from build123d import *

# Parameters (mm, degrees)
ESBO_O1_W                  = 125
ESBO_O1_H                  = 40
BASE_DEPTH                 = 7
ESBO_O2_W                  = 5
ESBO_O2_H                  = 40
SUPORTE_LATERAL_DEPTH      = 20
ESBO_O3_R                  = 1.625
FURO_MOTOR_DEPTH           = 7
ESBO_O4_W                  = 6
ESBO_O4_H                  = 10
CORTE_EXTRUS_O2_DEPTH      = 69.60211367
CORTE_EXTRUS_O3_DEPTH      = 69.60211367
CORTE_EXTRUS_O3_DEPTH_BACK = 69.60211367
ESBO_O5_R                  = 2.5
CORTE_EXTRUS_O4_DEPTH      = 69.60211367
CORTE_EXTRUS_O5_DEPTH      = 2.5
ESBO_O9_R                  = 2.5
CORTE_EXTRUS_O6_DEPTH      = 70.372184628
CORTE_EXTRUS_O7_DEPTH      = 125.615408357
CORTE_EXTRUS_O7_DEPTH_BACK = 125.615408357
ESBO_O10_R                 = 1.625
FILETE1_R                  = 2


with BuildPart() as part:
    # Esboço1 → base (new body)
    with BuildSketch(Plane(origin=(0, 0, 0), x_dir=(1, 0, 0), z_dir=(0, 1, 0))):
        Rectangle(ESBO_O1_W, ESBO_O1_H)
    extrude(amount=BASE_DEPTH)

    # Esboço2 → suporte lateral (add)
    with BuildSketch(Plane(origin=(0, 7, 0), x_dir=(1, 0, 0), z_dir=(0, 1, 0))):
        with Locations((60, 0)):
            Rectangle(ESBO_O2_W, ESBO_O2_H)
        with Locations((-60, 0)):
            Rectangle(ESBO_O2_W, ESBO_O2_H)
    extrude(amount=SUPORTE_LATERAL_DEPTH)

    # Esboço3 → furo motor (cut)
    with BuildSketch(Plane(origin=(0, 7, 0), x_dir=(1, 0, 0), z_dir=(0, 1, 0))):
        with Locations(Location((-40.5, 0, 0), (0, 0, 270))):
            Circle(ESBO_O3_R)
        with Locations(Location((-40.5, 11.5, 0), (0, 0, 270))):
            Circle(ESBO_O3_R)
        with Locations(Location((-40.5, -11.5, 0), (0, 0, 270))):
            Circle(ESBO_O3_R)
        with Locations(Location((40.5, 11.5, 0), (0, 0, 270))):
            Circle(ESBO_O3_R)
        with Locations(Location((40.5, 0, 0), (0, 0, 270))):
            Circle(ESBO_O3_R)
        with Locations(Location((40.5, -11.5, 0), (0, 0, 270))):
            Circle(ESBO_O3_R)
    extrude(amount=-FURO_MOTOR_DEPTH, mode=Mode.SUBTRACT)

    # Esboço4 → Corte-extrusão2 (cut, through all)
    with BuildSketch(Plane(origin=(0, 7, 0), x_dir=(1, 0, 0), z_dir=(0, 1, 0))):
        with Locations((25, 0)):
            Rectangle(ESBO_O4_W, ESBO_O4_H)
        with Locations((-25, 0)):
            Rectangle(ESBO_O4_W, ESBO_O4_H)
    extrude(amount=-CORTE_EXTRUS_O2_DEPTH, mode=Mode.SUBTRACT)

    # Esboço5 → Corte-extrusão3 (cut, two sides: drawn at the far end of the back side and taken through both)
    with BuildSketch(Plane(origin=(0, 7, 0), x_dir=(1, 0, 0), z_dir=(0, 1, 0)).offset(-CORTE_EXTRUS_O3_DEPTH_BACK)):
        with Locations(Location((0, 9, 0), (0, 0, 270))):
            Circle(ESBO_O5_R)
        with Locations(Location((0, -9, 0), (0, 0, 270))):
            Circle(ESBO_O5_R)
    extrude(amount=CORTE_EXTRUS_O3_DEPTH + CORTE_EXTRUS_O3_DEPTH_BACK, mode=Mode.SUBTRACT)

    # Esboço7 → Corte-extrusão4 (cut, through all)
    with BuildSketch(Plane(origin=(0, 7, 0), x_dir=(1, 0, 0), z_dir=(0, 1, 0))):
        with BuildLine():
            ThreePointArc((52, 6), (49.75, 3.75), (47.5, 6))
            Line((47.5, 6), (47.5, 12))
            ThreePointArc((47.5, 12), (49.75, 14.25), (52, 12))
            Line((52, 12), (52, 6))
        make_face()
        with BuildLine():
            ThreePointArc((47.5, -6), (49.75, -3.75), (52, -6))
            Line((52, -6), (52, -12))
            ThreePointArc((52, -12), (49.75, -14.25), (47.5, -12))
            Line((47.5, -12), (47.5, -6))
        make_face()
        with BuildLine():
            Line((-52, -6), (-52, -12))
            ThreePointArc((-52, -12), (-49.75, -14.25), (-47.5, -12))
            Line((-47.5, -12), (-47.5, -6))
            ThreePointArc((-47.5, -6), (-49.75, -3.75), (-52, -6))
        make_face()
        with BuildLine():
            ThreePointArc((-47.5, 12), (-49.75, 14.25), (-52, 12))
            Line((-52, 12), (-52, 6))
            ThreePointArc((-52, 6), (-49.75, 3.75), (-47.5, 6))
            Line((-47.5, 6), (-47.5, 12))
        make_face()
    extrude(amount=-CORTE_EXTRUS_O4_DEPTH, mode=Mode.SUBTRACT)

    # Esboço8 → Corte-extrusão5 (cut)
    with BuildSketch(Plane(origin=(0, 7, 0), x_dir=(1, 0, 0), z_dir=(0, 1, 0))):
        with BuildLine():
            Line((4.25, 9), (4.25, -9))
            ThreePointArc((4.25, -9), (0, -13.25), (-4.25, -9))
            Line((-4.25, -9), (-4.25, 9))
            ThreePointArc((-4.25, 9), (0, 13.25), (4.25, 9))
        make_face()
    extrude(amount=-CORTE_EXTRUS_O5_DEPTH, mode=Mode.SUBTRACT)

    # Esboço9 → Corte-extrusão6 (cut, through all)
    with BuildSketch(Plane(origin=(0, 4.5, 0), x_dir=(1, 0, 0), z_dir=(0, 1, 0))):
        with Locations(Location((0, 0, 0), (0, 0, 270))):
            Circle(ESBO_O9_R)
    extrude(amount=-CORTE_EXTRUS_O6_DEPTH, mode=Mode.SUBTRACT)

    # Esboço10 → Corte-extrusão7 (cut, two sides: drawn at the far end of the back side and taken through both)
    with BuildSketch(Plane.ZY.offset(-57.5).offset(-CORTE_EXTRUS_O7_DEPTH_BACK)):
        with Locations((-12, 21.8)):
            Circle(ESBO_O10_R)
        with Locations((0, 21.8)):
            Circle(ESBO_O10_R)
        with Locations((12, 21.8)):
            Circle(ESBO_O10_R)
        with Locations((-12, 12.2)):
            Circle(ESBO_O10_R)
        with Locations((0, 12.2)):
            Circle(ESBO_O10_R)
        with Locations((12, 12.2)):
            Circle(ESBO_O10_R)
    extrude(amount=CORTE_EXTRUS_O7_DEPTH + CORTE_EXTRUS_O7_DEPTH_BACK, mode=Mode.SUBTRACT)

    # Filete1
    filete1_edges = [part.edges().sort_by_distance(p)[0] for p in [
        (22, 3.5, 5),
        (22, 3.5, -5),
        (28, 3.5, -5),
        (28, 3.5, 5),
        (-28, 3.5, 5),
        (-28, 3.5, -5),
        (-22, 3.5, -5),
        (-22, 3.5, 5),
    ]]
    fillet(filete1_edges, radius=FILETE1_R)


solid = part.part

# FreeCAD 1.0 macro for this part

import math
import FreeCAD as App
import Part
import Sketcher
from FreeCAD import Vector
Q = App.Units.Quantity


def edges_at(feature, points):
    """Names of the edges that pass closest to the given points."""
    edges = feature.Shape.Edges
    near = lambda p: min(range(len(edges)), key=lambda i: edges[i].distToShape(Part.Vertex(*p))[0])
    return sorted({f"Edge{near(p) + 1}" for p in points})


def add_polygon(sketch, points):
    """Adds a closed chain of lines whose ends are joined by coincident constraints."""
    first, n = sketch.GeometryCount, len(points)
    for a, b in zip(points, points[1:] + points[:1]):
        sketch.addGeometry(Part.LineSegment(App.Vector(*a, 0), App.Vector(*b, 0)), False)
    for i in range(n):
        sketch.addConstraint(Sketcher.Constraint("Coincident", first + i, 2, first + (i + 1) % n, 1))

doc = App.newDocument("Part")
body = doc.addObject("PartDesign::Body", "Body")

# Sketch on XZ plane
sketch1 = body.newObject("Sketcher::SketchObject", "Sketch")
sketch1.AttachmentSupport = (doc.getObject("XZ_Plane"), [""])
sketch1.MapMode = "FlatFace"
add_polygon(sketch1, [(-62, -20), (-62, 20), (62, 20), (62, -20)])  # lines 0-3
sketch1.addConstraint([
    Sketcher.Constraint("Vertical", 0),
    Sketcher.Constraint("Horizontal", 1),
    Sketcher.Constraint("Vertical", 2),
    Sketcher.Constraint("Horizontal", 3),
    Sketcher.Constraint("Symmetric", 0, 2, 2, 2, -1, 1),
    Sketcher.Constraint("DistanceX", 1, 1, 1, 2, Q("125 mm")),
    Sketcher.Constraint("DistanceY", 0, 1, 0, 2, Q("40 mm")),
])
pad1 = body.newObject("PartDesign::Pad", "Pad")
pad1.Profile = sketch1
pad1.Length = 7
pad1.Reversed = True

# Sketch on XZ plane
sketch2 = body.newObject("Sketcher::SketchObject", "Sketch001")
sketch2.AttachmentSupport = (doc.getObject("XZ_Plane"), [""])
sketch2.MapMode = "FlatFace"
sketch2.AttachmentOffset = App.Placement(Vector(0, 0, -7), App.Rotation())
add_polygon(sketch2, [(58, -20), (58, 20), (62, 20), (62, -20)])  # lines 0-3
add_polygon(sketch2, [(-62, -20), (-62, 20), (-58, 20), (-58, -20)])  # lines 4-7
sketch2.addConstraint([
    Sketcher.Constraint("Vertical", 0),
    Sketcher.Constraint("Horizontal", 1),
    Sketcher.Constraint("Vertical", 2),
    Sketcher.Constraint("Horizontal", 3),
    Sketcher.Constraint("Vertical", 4),
    Sketcher.Constraint("Horizontal", 5),
    Sketcher.Constraint("Vertical", 6),
    Sketcher.Constraint("Horizontal", 7),
    Sketcher.Constraint("Symmetric", 2, 2, 4, 2, -1, 1),
    Sketcher.Constraint("Symmetric", 0, 2, 6, 2, -1, 1),
    Sketcher.Constraint("Horizontal", 1, 2, 4, 2),
    Sketcher.Constraint("DistanceX", 1, 1, 1, 2, Q("5 mm")),
    Sketcher.Constraint("DistanceY", 0, 1, 0, 2, Q("40 mm")),
    Sketcher.Constraint("DistanceX", 4, 2, 0, 2, Q("120 mm")),
])
pad2 = body.newObject("PartDesign::Pad", "Pad001")
pad2.Profile = sketch2
pad2.Length = 20
pad2.Reversed = True

# Sketch on XZ plane
sketch3 = body.newObject("Sketcher::SketchObject", "Sketch002")
sketch3.AttachmentSupport = (doc.getObject("XZ_Plane"), [""])
sketch3.MapMode = "FlatFace"
sketch3.AttachmentOffset = App.Placement(Vector(0, 0, -7), App.Rotation())
sketch3.addGeometry([
    Part.Circle(Vector(-40.5, 0, 0), Vector(0, 0, 1), 1.6),  # 0
    Part.Circle(Vector(-40.5, -11.5, 0), Vector(0, 0, 1), 1.6),  # 1
    Part.Circle(Vector(-40.5, 11.5, 0), Vector(0, 0, 1), 1.6),  # 2
    Part.Circle(Vector(40.5, -11.5, 0), Vector(0, 0, 1), 1.6),  # 3
    Part.Circle(Vector(40.5, 0, 0), Vector(0, 0, 1), 1.6),  # 4
    Part.Circle(Vector(40.5, 11.5, 0), Vector(0, 0, 1), 1.6),  # 5
], False)
sketch3.addConstraint([
    Sketcher.Constraint("Equal", 0, 1),
    Sketcher.Constraint("Equal", 1, 2),
    Sketcher.Constraint("Equal", 2, 3),
    Sketcher.Constraint("Equal", 3, 4),
    Sketcher.Constraint("Equal", 4, 5),
    Sketcher.Constraint("Symmetric", 2, 3, 3, 3, -1, 1),
    Sketcher.Constraint("Symmetric", 0, 3, 4, 3, -1, 1),
    Sketcher.Constraint("Symmetric", 1, 3, 5, 3, -1, 1),
    Sketcher.Constraint("Symmetric", 1, 3, 3, 3, -2),
    Sketcher.Constraint("PointOnObject", 0, 3, -1),
    Sketcher.Constraint("Vertical", 0, 3, 1, 3),
    Sketcher.Constraint("Diameter", 0, Q("3.25 mm")),
    Sketcher.Constraint("DistanceY", 1, 3, 2, 3, Q("23 mm")),
    Sketcher.Constraint("DistanceX", 1, 3, 3, 3, Q("81 mm")),
])
pocket1 = body.newObject("PartDesign::Pocket", "Pocket")
pocket1.Profile = sketch3
pocket1.Length = 7
pocket1.Reversed = True

# Sketch on XZ plane
sketch4 = body.newObject("Sketcher::SketchObject", "Sketch003")
sketch4.AttachmentSupport = (doc.getObject("XZ_Plane"), [""])
sketch4.MapMode = "FlatFace"
sketch4.AttachmentOffset = App.Placement(Vector(0, 0, -7), App.Rotation())
add_polygon(sketch4, [(22, -5), (22, 5), (28, 5), (28, -5)])  # lines 0-3
add_polygon(sketch4, [(-28, -5), (-28, 5), (-22, 5), (-22, -5)])  # lines 4-7
sketch4.addConstraint([
    Sketcher.Constraint("Vertical", 0),
    Sketcher.Constraint("Horizontal", 1),
    Sketcher.Constraint("Vertical", 2),
    Sketcher.Constraint("Horizontal", 3),
    Sketcher.Constraint("Vertical", 4),
    Sketcher.Constraint("Horizontal", 5),
    Sketcher.Constraint("Vertical", 6),
    Sketcher.Constraint("Horizontal", 7),
    Sketcher.Constraint("Symmetric", 2, 2, 4, 2, -1, 1),
    Sketcher.Constraint("Symmetric", 0, 2, 6, 2, -1, 1),
    Sketcher.Constraint("Horizontal", 1, 2, 4, 2),
    Sketcher.Constraint("DistanceX", 1, 1, 1, 2, Q("6 mm")),
    Sketcher.Constraint("DistanceY", 0, 1, 0, 2, Q("10 mm")),
    Sketcher.Constraint("DistanceX", -1, 1, 0, 2, Q("22 mm")),
])
pocket2 = body.newObject("PartDesign::Pocket", "Pocket001")
pocket2.Profile = sketch4
pocket2.Type = "ThroughAll"
pocket2.Reversed = True

# Sketch on XZ plane
sketch5 = body.newObject("Sketcher::SketchObject", "Sketch004")
sketch5.AttachmentSupport = (doc.getObject("XZ_Plane"), [""])
sketch5.MapMode = "FlatFace"
sketch5.AttachmentOffset = App.Placement(Vector(0, 0, -7), App.Rotation())
sketch5.addGeometry([
    Part.Circle(Vector(0, -9, 0), Vector(0, 0, 1), 2.5),
    Part.Circle(Vector(0, 9, 0), Vector(0, 0, 1), 2.5),
], False)
sketch5.addConstraint([
    Sketcher.Constraint("Equal", 0, 1),
    Sketcher.Constraint("Symmetric", 0, 3, 1, 3, -1, 1),
    Sketcher.Constraint("PointOnObject", 0, 3, -2),
    Sketcher.Constraint("Diameter", 0, Q("5 mm")),
    Sketcher.Constraint("DistanceY", 0, 3, -1, 1, Q("9 mm")),
])
pocket3 = body.newObject("PartDesign::Pocket", "Pocket002")
pocket3.Profile = sketch5
pocket3.Type = "ThroughAll"
pocket3.Midplane = True

# Sketch on XZ plane
sketch6 = body.newObject("Sketcher::SketchObject", "Sketch005")
sketch6.AttachmentSupport = (doc.getObject("XZ_Plane"), [""])
sketch6.MapMode = "FlatFace"
sketch6.AttachmentOffset = App.Placement(Vector(0, 0, -7), App.Rotation())
sketch6.addGeometry([
    Part.ArcOfCircle(Part.Circle(Vector(49.8, -6, 0), Vector(0, 0, 1), 2.2), math.radians(0), math.radians(180)),  # 0
    Part.LineSegment(Vector(52, -6, 0), Vector(52, -12, 0)),  # 1
    Part.ArcOfCircle(Part.Circle(Vector(49.8, -12, 0), Vector(0, 0, 1), 2.2), math.radians(180), math.radians(360)),  # 2
    Part.LineSegment(Vector(47.5, -12, 0), Vector(47.5, -6, 0)),  # 3
    Part.ArcOfCircle(Part.Circle(Vector(49.8, 6, 0), Vector(0, 0, 1), 2.2), math.radians(180), math.radians(360)),  # 4
    Part.LineSegment(Vector(47.5, 6, 0), Vector(47.5, 12, 0)),  # 5
    Part.ArcOfCircle(Part.Circle(Vector(49.8, 12, 0), Vector(0, 0, 1), 2.2), math.radians(0), math.radians(180)),  # 6
    Part.LineSegment(Vector(52, 12, 0), Vector(52, 6, 0)),  # 7
    Part.LineSegment(Vector(-52, 6, 0), Vector(-52, 12, 0)),  # 8
    Part.ArcOfCircle(Part.Circle(Vector(-49.8, 12, 0), Vector(0, 0, 1), 2.2), math.radians(0), math.radians(180)),  # 9
    Part.LineSegment(Vector(-47.5, 12, 0), Vector(-47.5, 6, 0)),  # 10
    Part.ArcOfCircle(Part.Circle(Vector(-49.8, 6, 0), Vector(0, 0, 1), 2.2), math.radians(180), math.radians(360)),  # 11
    Part.ArcOfCircle(Part.Circle(Vector(-49.8, -12, 0), Vector(0, 0, 1), 2.2), math.radians(180), math.radians(360)),  # 12
    Part.LineSegment(Vector(-52, -12, 0), Vector(-52, -6, 0)),  # 13
    Part.ArcOfCircle(Part.Circle(Vector(-49.8, -6, 0), Vector(0, 0, 1), 2.2), math.radians(0), math.radians(180)),  # 14
    Part.LineSegment(Vector(-47.5, -6, 0), Vector(-47.5, -12, 0)),  # 15
], False)
sketch6.addConstraint([
    Sketcher.Constraint("Tangent", 0, 1, 1, 1),
    Sketcher.Constraint("Tangent", 1, 2, 2, 2),
    Sketcher.Constraint("Tangent", 2, 1, 3, 1),
    Sketcher.Constraint("Tangent", 3, 2, 0, 2),
    Sketcher.Constraint("Tangent", 4, 1, 5, 1),
    Sketcher.Constraint("Tangent", 5, 2, 6, 2),
    Sketcher.Constraint("Tangent", 6, 1, 7, 1),
    Sketcher.Constraint("Tangent", 7, 2, 4, 2),
    Sketcher.Constraint("Tangent", 8, 2, 9, 2),
    Sketcher.Constraint("Tangent", 9, 1, 10, 1),
    Sketcher.Constraint("Tangent", 10, 2, 11, 2),
    Sketcher.Constraint("Tangent", 11, 1, 8, 1),
    Sketcher.Constraint("Tangent", 12, 1, 13, 1),
    Sketcher.Constraint("Tangent", 13, 2, 14, 2),
    Sketcher.Constraint("Tangent", 14, 1, 15, 1),
    Sketcher.Constraint("Tangent", 15, 2, 12, 2),
    Sketcher.Constraint("Vertical", 1),
    Sketcher.Constraint("Vertical", 3),
    Sketcher.Constraint("Vertical", 5),
    Sketcher.Constraint("Vertical", 7),
    Sketcher.Constraint("Vertical", 8),
    Sketcher.Constraint("Vertical", 10),
    Sketcher.Constraint("Vertical", 13),
    Sketcher.Constraint("Vertical", 15),
    Sketcher.Constraint("Equal", 2, 4),
    Sketcher.Constraint("Equal", 6, 9),
    Sketcher.Constraint("Equal", 11, 12),
    Sketcher.Constraint("Symmetric", 2, 3, 9, 3, -1, 1),
    Sketcher.Constraint("Symmetric", 6, 3, 12, 3, -1, 1),
    Sketcher.Constraint("Symmetric", 6, 3, 9, 3, -2),
    Sketcher.Constraint("Horizontal", 4, 3, 11, 3),
    Sketcher.Constraint("Horizontal", 0, 3, 14, 3),
    Sketcher.Constraint("Equal", 3, 5),
    Sketcher.Constraint("DistanceY", 1, 2, 1, 1, Q("6 mm")),
    Sketcher.Constraint("Radius", 0, Q("2.25 mm")),
    Sketcher.Constraint("DistanceY", 0, 3, -1, 1, Q("6 mm")),
    Sketcher.Constraint("DistanceX", -1, 1, 0, 1, Q("52 mm")),
])
pocket4 = body.newObject("PartDesign::Pocket", "Pocket003")
pocket4.Profile = sketch6
pocket4.Type = "ThroughAll"
pocket4.Reversed = True

# Sketch on XZ plane
sketch7 = body.newObject("Sketcher::SketchObject", "Sketch006")
sketch7.AttachmentSupport = (doc.getObject("XZ_Plane"), [""])
sketch7.MapMode = "FlatFace"
sketch7.AttachmentOffset = App.Placement(Vector(0, 0, -7), App.Rotation())
sketch7.addGeometry([
    Part.LineSegment(Vector(4.2, 9, 0), Vector(4.2, -9, 0)),
    Part.ArcOfCircle(Part.Circle(Vector(0, -9, 0), Vector(0, 0, 1), 4.2), math.radians(180), math.radians(360)),
    Part.LineSegment(Vector(-4.2, -9, 0), Vector(-4.2, 9, 0)),
    Part.ArcOfCircle(Part.Circle(Vector(0, 9, 0), Vector(0, 0, 1), 4.2), math.radians(0), math.radians(180)),
], False)
sketch7.addConstraint([
    Sketcher.Constraint("Tangent", 0, 2, 1, 2),
    Sketcher.Constraint("Tangent", 1, 1, 2, 1),
    Sketcher.Constraint("Tangent", 2, 2, 3, 2),
    Sketcher.Constraint("Tangent", 3, 1, 0, 1),
    Sketcher.Constraint("Vertical", 0),
    Sketcher.Constraint("Vertical", 2),
    Sketcher.Constraint("Symmetric", 1, 3, 3, 3, -1, 1),
    Sketcher.Constraint("DistanceY", 0, 2, 0, 1, Q("18 mm")),
    Sketcher.Constraint("Radius", 1, Q("4.25 mm")),
])
pocket5 = body.newObject("PartDesign::Pocket", "Pocket004")
pocket5.Profile = sketch7
pocket5.Length = 2.5
pocket5.Reversed = True

# Sketch on XZ plane
sketch8 = body.newObject("Sketcher::SketchObject", "Sketch007")
sketch8.AttachmentSupport = (doc.getObject("XZ_Plane"), [""])
sketch8.MapMode = "FlatFace"
sketch8.AttachmentOffset = App.Placement(Vector(0, 0, -4.5), App.Rotation())
sketch8.addGeometry(Part.Circle(Vector(0, 0, 0), Vector(0, 0, 1), 2.5), False)
sketch8.addConstraint([
    Sketcher.Constraint("Coincident", 0, 3, -1, 1),
    Sketcher.Constraint("Diameter", 0, Q("5 mm")),
])
pocket6 = body.newObject("PartDesign::Pocket", "Pocket005")
pocket6.Profile = sketch8
pocket6.Type = "ThroughAll"
pocket6.Reversed = True

# Sketch on YZ plane
sketch9 = body.newObject("Sketcher::SketchObject", "Sketch008")
sketch9.AttachmentSupport = (doc.getObject("YZ_Plane"), [""])
sketch9.MapMode = "FlatFace"
sketch9.AttachmentOffset = App.Placement(Vector(0, 0, 57.5), App.Rotation())
sketch9.addGeometry([
    Part.Circle(Vector(21.8, -12, 0), Vector(0, 0, 1), 1.6),  # 0
    Part.Circle(Vector(21.8, 0, 0), Vector(0, 0, 1), 1.6),  # 1
    Part.Circle(Vector(21.8, 12, 0), Vector(0, 0, 1), 1.6),  # 2
    Part.Circle(Vector(12.2, -12, 0), Vector(0, 0, 1), 1.6),  # 3
    Part.Circle(Vector(12.2, 0, 0), Vector(0, 0, 1), 1.6),  # 4
    Part.Circle(Vector(12.2, 12, 0), Vector(0, 0, 1), 1.6),  # 5
], False)
sketch9.addConstraint([
    Sketcher.Constraint("Equal", 0, 1),
    Sketcher.Constraint("Equal", 1, 2),
    Sketcher.Constraint("Equal", 2, 3),
    Sketcher.Constraint("Equal", 3, 4),
    Sketcher.Constraint("Equal", 4, 5),
    Sketcher.Constraint("Symmetric", 0, 3, 2, 3, -1),
    Sketcher.Constraint("Symmetric", 3, 3, 5, 3, -1),
    Sketcher.Constraint("PointOnObject", 1, 3, -1),
    Sketcher.Constraint("PointOnObject", 4, 3, -1),
    Sketcher.Constraint("Horizontal", 0, 3, 3, 3),
    Sketcher.Constraint("Vertical", 0, 3, 1, 3),
    Sketcher.Constraint("Vertical", 3, 3, 4, 3),
    Sketcher.Constraint("Diameter", 0, Q("3.25 mm")),
    Sketcher.Constraint("DistanceY", 0, 3, -1, 1, Q("12 mm")),
    Sketcher.Constraint("DistanceX", -1, 1, 0, 3, Q("21.8 mm")),
    Sketcher.Constraint("DistanceX", -1, 1, 3, 3, Q("12.2 mm")),
])
pocket7 = body.newObject("PartDesign::Pocket", "Pocket006")
pocket7.Profile = sketch9
pocket7.Type = "ThroughAll"
pocket7.Midplane = True
doc.recompute()

fillet = body.newObject("PartDesign::Fillet", "Fillet")
fillet.Base = (pocket7, edges_at(pocket7, [
    (22, 3.5, 5),
    (22, 3.5, -5),
    (28, 3.5, -5),
    (28, 3.5, 5),
    (-28, 3.5, 5),
    (-28, 3.5, -5),
    (-22, 3.5, -5),
    (-22, 3.5, 5),
]))
fillet.Radius = 2

doc.recompute()
